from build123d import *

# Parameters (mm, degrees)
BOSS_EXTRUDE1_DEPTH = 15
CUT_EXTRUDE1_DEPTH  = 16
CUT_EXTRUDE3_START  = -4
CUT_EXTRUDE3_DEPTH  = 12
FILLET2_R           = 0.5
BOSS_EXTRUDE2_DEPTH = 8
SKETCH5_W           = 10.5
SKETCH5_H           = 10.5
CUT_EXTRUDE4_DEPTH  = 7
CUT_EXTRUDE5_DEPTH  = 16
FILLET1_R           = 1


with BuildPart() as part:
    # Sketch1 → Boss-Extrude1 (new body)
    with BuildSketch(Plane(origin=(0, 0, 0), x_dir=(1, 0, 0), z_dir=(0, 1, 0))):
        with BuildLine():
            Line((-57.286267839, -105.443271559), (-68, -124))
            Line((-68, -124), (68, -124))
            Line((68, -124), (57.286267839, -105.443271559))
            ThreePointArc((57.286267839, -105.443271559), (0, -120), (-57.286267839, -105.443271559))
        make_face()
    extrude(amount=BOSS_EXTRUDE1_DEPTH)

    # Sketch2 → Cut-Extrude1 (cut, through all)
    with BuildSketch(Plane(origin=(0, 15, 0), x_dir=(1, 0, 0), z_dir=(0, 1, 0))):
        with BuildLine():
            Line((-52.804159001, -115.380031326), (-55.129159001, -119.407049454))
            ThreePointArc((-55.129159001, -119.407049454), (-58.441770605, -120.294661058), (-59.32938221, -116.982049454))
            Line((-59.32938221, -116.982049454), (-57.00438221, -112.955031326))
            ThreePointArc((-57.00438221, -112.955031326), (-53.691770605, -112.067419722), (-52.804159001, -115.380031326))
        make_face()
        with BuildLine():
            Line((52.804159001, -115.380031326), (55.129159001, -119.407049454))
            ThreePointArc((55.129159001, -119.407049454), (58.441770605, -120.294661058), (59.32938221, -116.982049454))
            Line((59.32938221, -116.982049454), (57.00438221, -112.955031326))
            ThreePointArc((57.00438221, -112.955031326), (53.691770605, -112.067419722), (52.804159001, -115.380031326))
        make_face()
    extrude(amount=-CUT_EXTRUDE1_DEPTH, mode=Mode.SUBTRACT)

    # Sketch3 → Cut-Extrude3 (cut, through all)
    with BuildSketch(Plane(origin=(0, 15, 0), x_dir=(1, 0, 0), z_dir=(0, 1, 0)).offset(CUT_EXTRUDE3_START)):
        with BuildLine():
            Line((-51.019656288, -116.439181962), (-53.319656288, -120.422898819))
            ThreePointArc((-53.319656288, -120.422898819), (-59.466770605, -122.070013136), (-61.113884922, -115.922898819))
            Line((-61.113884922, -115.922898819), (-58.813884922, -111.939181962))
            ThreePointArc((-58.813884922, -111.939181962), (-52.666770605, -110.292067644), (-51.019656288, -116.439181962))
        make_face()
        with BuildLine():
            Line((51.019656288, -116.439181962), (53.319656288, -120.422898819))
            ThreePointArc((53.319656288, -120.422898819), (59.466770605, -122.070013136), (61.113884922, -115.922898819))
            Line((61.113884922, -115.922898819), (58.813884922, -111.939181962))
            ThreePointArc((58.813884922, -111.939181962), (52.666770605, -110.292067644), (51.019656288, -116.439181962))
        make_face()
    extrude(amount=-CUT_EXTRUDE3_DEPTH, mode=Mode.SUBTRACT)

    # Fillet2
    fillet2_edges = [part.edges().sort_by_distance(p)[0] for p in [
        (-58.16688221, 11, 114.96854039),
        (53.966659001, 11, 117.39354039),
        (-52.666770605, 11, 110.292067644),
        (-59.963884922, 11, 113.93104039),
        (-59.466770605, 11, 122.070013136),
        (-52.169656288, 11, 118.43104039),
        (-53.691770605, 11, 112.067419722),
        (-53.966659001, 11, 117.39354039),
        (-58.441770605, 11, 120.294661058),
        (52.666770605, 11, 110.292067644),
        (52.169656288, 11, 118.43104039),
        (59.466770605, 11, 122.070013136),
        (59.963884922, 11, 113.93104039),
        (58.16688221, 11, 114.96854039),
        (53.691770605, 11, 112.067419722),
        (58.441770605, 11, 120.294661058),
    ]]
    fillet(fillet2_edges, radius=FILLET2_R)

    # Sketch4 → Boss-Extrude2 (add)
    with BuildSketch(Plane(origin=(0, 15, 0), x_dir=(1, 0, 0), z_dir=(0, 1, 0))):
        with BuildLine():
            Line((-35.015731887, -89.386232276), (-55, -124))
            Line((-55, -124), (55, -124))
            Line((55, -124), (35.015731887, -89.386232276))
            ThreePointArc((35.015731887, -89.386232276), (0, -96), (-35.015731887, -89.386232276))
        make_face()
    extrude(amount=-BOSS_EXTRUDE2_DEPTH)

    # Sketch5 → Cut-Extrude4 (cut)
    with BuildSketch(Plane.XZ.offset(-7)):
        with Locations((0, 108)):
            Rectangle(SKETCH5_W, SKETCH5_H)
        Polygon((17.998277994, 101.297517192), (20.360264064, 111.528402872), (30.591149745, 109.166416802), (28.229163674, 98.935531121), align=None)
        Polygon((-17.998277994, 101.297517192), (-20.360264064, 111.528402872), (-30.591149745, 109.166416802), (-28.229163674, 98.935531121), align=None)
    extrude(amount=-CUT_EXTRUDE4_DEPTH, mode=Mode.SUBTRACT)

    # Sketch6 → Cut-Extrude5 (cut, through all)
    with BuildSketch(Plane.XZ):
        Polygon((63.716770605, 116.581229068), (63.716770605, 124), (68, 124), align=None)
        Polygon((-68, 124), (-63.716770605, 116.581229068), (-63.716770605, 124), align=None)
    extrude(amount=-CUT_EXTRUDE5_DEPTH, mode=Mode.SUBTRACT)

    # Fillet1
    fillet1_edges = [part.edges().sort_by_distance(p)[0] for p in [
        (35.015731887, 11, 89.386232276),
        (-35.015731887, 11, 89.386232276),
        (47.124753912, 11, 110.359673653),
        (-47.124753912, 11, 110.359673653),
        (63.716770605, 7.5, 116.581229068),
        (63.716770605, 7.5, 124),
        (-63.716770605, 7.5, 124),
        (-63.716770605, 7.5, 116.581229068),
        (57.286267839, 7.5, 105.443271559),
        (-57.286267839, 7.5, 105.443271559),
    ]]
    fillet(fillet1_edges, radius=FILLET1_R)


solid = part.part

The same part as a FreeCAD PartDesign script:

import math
import FreeCAD as App
import Part
import Sketcher
from FreeCAD import Vector
Q = App.Units.Quantity


def edges_at(feature, points):
    """Names of the edges that pass closest to the given points."""
    edges = feature.Shape.Edges
    near = lambda p: min(range(len(edges)), key=lambda i: edges[i].distToShape(Part.Vertex(*p))[0])
    return sorted({f"Edge{near(p) + 1}" for p in points})


def add_polygon(sketch, points):
    """Adds a closed chain of lines whose ends are joined by coincident constraints."""
    first, n = sketch.GeometryCount, len(points)
    for a, b in zip(points, points[1:] + points[:1]):
        sketch.addGeometry(Part.LineSegment(App.Vector(*a, 0), App.Vector(*b, 0)), False)
    for i in range(n):
        sketch.addConstraint(Sketcher.Constraint("Coincident", first + i, 2, first + (i + 1) % n, 1))

doc = App.newDocument("Part")
params = doc.addObject("Spreadsheet::Sheet", "Params")
for row, (alias, value) in enumerate([
    ("sketch1_radius", "120 mm"),
    ("sketch1_width", "136 mm"),
    ("pad1_length", "15 mm"),
    ("sketch2_length", "4.65 mm"),
    ("sketch3_radius", "4.5 mm"),
    ("sketch3_length", "4.6 mm"),
    ("fillet_radius", "0.5 mm"),
    ("sketch4_radius", "96 mm"),
    ("sketch4_width", "110 mm"),
    ("pad2_length", "8 mm"),
    ("sketch5_width", "10.5 mm"),
    ("sketch5_length", "10.5 mm"),
    ("pocket3_length", "7 mm"),
    ("fillet2_radius", "1 mm"),
], start=1):
    params.set(f"A{row}", alias)
    params.set(f"B{row}", "=" + value)
    params.setAlias(f"B{row}", alias)

body = doc.addObject("PartDesign::Body", "Body")

# Sketch on XZ plane
sketch1 = doc.addObject("Sketcher::SketchObject", "Sketch")
body.addObject(sketch1)
sketch1.AttachmentSupport = (doc.XZ_Plane, [""])
sketch1.MapMode = "FlatFace"
sketch1.addGeometry([
    Part.LineSegment(Vector(-57, 105, 0), Vector(-68, 124, 0)),
    Part.LineSegment(Vector(-68, 124, 0), Vector(68, 124, 0)),
    Part.LineSegment(Vector(68, 124, 0), Vector(57, 105, 0)),
    Part.ArcOfCircle(Part.Circle(Vector(0, 0, 0), Vector(0, 0, 1), 120), math.radians(61), math.radians(119)),
], False)
sketch1.addConstraint([
    Sketcher.Constraint("Coincident", 0, 2, 1, 1),
    Sketcher.Constraint("Coincident", 1, 2, 2, 1),
    Sketcher.Constraint("Coincident", 2, 2, 3, 1),
    Sketcher.Constraint("Coincident", 3, 2, 0, 1),
    Sketcher.Constraint("Horizontal", 1),
    Sketcher.Constraint("Coincident", 3, 3, -1, 1),
    Sketcher.Constraint("Horizontal", 2, 2, 3, 2),
    Sketcher.Constraint("Equal", 0, 2),
    Sketcher.Constraint("Radius", 3, Q("120 mm")),
    Sketcher.Constraint("DistanceX", 1, 1, 1, 2, Q("136 mm")),
    Sketcher.Constraint("Angle", 0, Q("120 deg")),
    Sketcher.Constraint("DistanceY", -1, 1, 0, 2, Q("124 mm")),
])
sketch1.setExpression("Constraints[8]", "Params.sketch1_radius")
sketch1.setExpression("Constraints[9]", "Params.sketch1_width")
pad1 = doc.addObject("PartDesign::Pad", "Pad")
body.addObject(pad1)
pad1.Profile = sketch1
pad1.setExpression("Length", "Params.pad1_length")
pad1.Reversed = True

# Sketch on XZ plane
sketch2 = doc.addObject("Sketcher::SketchObject", "Sketch001")
body.addObject(sketch2)
sketch2.AttachmentSupport = (doc.XZ_Plane, [""])
sketch2.MapMode = "FlatFace"
sketch2.AttachmentOffset = App.Placement(Vector(0, 0, -15), App.Rotation())
sketch2.addGeometry([
    Part.LineSegment(Vector(-55.1, 119.4, 0), Vector(-52.8, 115.4, 0)),  # 0
    Part.ArcOfCircle(Part.Circle(Vector(-54.9, 114.2, 0), Vector(0, 0, 1), 2.4), math.radians(-150), math.radians(30)),  # 1
    Part.LineSegment(Vector(-57, 113, 0), Vector(-59.3, 117, 0)),  # 2
    Part.ArcOfCircle(Part.Circle(Vector(-57.2, 118.2, 0), Vector(0, 0, 1), 2.4), math.radians(30), math.radians(210)),  # 3
    Part.LineSegment(Vector(52.8, 115.4, 0), Vector(55.1, 119.4, 0)),  # 4
    Part.ArcOfCircle(Part.Circle(Vector(57.2, 118.2, 0), Vector(0, 0, 1), 2.4), math.radians(-30), math.radians(150)),  # 5
    Part.LineSegment(Vector(59.3, 117, 0), Vector(57, 113, 0)),  # 6
    Part.ArcOfCircle(Part.Circle(Vector(54.9, 114.2, 0), Vector(0, 0, 1), 2.4), math.radians(150), math.radians(330)),  # 7
], False)
sketch2.addConstraint([
    Sketcher.Constraint("Tangent", 0, 2, 1, 2),
    Sketcher.Constraint("Tangent", 1, 1, 2, 1),
    Sketcher.Constraint("Tangent", 2, 2, 3, 2),
    Sketcher.Constraint("Tangent", 3, 1, 0, 1),
    Sketcher.Constraint("Tangent", 4, 2, 5, 2),
    Sketcher.Constraint("Tangent", 5, 1, 6, 1),
    Sketcher.Constraint("Tangent", 6, 2, 7, 2),
    Sketcher.Constraint("Tangent", 7, 1, 4, 1),
    Sketcher.Constraint("Equal", 1, 3),
    Sketcher.Constraint("Equal", 3, 5),
    Sketcher.Constraint("Equal", 5, 7),
    Sketcher.Constraint("Symmetric", 3, 3, 5, 3, -2),
    Sketcher.Constraint("Symmetric", 1, 3, 7, 3, -2),
    Sketcher.Constraint("Angle", 0, Q("-60 deg")),
    Sketcher.Constraint("Radius", 1, Q("2.425 mm")),
    Sketcher.Constraint("Distance", 0, Q("4.65 mm")),
    Sketcher.Constraint("DistanceX", 1, 3, -1, 1, Q("54.904271 mm")),
    Sketcher.Constraint("DistanceY", -1, 1, 1, 3, Q("114.167531 mm")),
])
sketch2.setExpression("Constraints[15]", "Params.sketch2_length")
pocket1 = doc.addObject("PartDesign::Pocket", "Pocket")
body.addObject(pocket1)
pocket1.Profile = sketch2
pocket1.Type = "ThroughAll"
pocket1.Reversed = True

# Sketch on XZ plane
sketch3 = doc.addObject("Sketcher::SketchObject", "Sketch002")
body.addObject(sketch3)
sketch3.AttachmentSupport = (doc.XZ_Plane, [""])
sketch3.MapMode = "FlatFace"
sketch3.AttachmentOffset = App.Placement(Vector(0, 0, -11), App.Rotation())
sketch3.addGeometry([
    Part.LineSegment(Vector(-53.3, 120.4, 0), Vector(-51, 116.4, 0)),  # 0
    Part.ArcOfCircle(Part.Circle(Vector(-54.9, 114.2, 0), Vector(0, 0, 1), 4.5), math.radians(-150), math.radians(30)),  # 1
    Part.LineSegment(Vector(-58.8, 111.9, 0), Vector(-61.1, 115.9, 0)),  # 2
    Part.ArcOfCircle(Part.Circle(Vector(-57.2, 118.2, 0), Vector(0, 0, 1), 4.5), math.radians(30), math.radians(210)),  # 3
    Part.LineSegment(Vector(51, 116.4, 0), Vector(53.3, 120.4, 0)),  # 4
    Part.ArcOfCircle(Part.Circle(Vector(57.2, 118.2, 0), Vector(0, 0, 1), 4.5), math.radians(-30), math.radians(150)),  # 5
    Part.LineSegment(Vector(61.1, 115.9, 0), Vector(58.8, 111.9, 0)),  # 6
    Part.ArcOfCircle(Part.Circle(Vector(54.9, 114.2, 0), Vector(0, 0, 1), 4.5), math.radians(150), math.radians(330)),  # 7
], False)
sketch3.addConstraint([
    Sketcher.Constraint("Tangent", 0, 2, 1, 2),
    Sketcher.Constraint("Tangent", 1, 1, 2, 1),
    Sketcher.Constraint("Tangent", 2, 2, 3, 2),
    Sketcher.Constraint("Tangent", 3, 1, 0, 1),
    Sketcher.Constraint("Tangent", 4, 2, 5, 2),
    Sketcher.Constraint("Tangent", 5, 1, 6, 1),
    Sketcher.Constraint("Tangent", 6, 2, 7, 2),
    Sketcher.Constraint("Tangent", 7, 1, 4, 1),
    Sketcher.Constraint("Equal", 1, 3),
    Sketcher.Constraint("Equal", 3, 5),
    Sketcher.Constraint("Equal", 5, 7),
    Sketcher.Constraint("Symmetric", 3, 3, 5, 3, -2),
    Sketcher.Constraint("Symmetric", 1, 3, 7, 3, -2),
    Sketcher.Constraint("Radius", 1, Q("4.5 mm")),
    Sketcher.Constraint("Angle", 0, Q("-60 deg")),
    Sketcher.Constraint("Distance", 0, Q("4.6 mm")),
    Sketcher.Constraint("DistanceY", -1, 1, 3, 3, Q("118.172899 mm")),
    Sketcher.Constraint("DistanceX", 1, 3, -1, 1, Q("54.916771 mm")),
])
sketch3.setExpression("Constraints[13]", "Params.sketch3_radius")
sketch3.setExpression("Constraints[15]", "Params.sketch3_length")
pocket2 = doc.addObject("PartDesign::Pocket", "Pocket001")
body.addObject(pocket2)
pocket2.Profile = sketch3
pocket2.Type = "ThroughAll"
pocket2.Reversed = True
doc.recompute()

fillet = doc.addObject("PartDesign::Fillet", "Fillet")
body.addObject(fillet)
fillet.Base = (pocket2, edges_at(pocket2, [
    (-58.167, 11, 114.969),
    (53.967, 11, 117.394),
    (-52.667, 11, 110.292),
    (-59.964, 11, 113.931),
    (-59.467, 11, 122.07),
    (-52.17, 11, 118.431),
    (-53.692, 11, 112.067),
    (-53.967, 11, 117.394),
    (-58.442, 11, 120.295),
    (52.667, 11, 110.292),
    (52.17, 11, 118.431),
    (59.467, 11, 122.07),
    (59.964, 11, 113.931),
    (58.167, 11, 114.969),
    (53.692, 11, 112.067),
    (58.442, 11, 120.295),
]))
fillet.setExpression("Radius", "Params.fillet_radius")

# Sketch on XZ plane
sketch4 = doc.addObject("Sketcher::SketchObject", "Sketch003")
body.addObject(sketch4)
sketch4.AttachmentSupport = (doc.XZ_Plane, [""])
sketch4.MapMode = "FlatFace"
sketch4.AttachmentOffset = App.Placement(Vector(0, 0, -15), App.Rotation())
sketch4.addGeometry([
    Part.LineSegment(Vector(-35, 89, 0), Vector(-55, 124, 0)),
    Part.LineSegment(Vector(-55, 124, 0), Vector(55, 124, 0)),
    Part.LineSegment(Vector(55, 124, 0), Vector(35, 89, 0)),
    Part.ArcOfCircle(Part.Circle(Vector(0, 0, 0), Vector(0, 0, 1), 96), math.radians(69), math.radians(111)),
], False)
sketch4.addConstraint([
    Sketcher.Constraint("Coincident", 0, 2, 1, 1),
    Sketcher.Constraint("Coincident", 1, 2, 2, 1),
    Sketcher.Constraint("Coincident", 2, 2, 3, 1),
    Sketcher.Constraint("Coincident", 3, 2, 0, 1),
    Sketcher.Constraint("Horizontal", 1),
    Sketcher.Constraint("Coincident", 3, 3, -1, 1),
    Sketcher.Constraint("Horizontal", 2, 2, 3, 2),
    Sketcher.Constraint("Equal", 0, 2),
    Sketcher.Constraint("Radius", 3, Q("96 mm")),
    Sketcher.Constraint("DistanceX", 1, 1, 1, 2, Q("110 mm")),
    Sketcher.Constraint("Angle", 0, Q("120 deg")),
    Sketcher.Constraint("DistanceY", -1, 1, 0, 2, Q("124 mm")),
])
sketch4.setExpression("Constraints[8]", "Params.sketch4_radius")
sketch4.setExpression("Constraints[9]", "Params.sketch4_width")
pad2 = doc.addObject("PartDesign::Pad", "Pad001")
body.addObject(pad2)
pad2.Profile = sketch4
pad2.setExpression("Length", "Params.pad2_length")

# Sketch on XZ plane
sketch5 = doc.addObject("Sketcher::SketchObject", "Sketch004")
body.addObject(sketch5)
sketch5.AttachmentSupport = (doc.XZ_Plane, [""])
sketch5.MapMode = "FlatFace"
sketch5.AttachmentOffset = App.Placement(Vector(0, 0, -7), App.Rotation())
add_polygon(sketch5, [(-5, 113), (-5, 103), (5, 103), (5, 113)])  # lines 0-3
add_polygon(sketch5, [(20, 112), (18, 101), (28, 99), (31, 109)])  # lines 4-7
add_polygon(sketch5, [(-18, 101), (-20, 112), (-31, 109), (-28, 99)])  # lines 8-11
sketch5.addConstraint([
    Sketcher.Constraint("Vertical", 0),
    Sketcher.Constraint("Horizontal", 1),
    Sketcher.Constraint("Vertical", 2),
    Sketcher.Constraint("Horizontal", 3),
    Sketcher.Constraint("Symmetric", 7, 2, 8, 2, -2),
    Sketcher.Constraint("Symmetric", 6, 2, 9, 2, -2),
    Sketcher.Constraint("Symmetric", 5, 2, 10, 2, -2),
    Sketcher.Constraint("Symmetric", 4, 2, 11, 2, -2),
    Sketcher.Constraint("Perpendicular", 4, 5),
    Sketcher.Constraint("Perpendicular", 5, 6),
    Sketcher.Constraint("Perpendicular", 6, 7),
    Sketcher.Constraint("Equal", 3, 0),
    Sketcher.Constraint("Equal", 4, 5),
    Sketcher.Constraint("Angle", 4, Q("-103 deg")),
    Sketcher.Constraint("DistanceX", 1, 1, 1, 2, Q("10.5 mm")),
    Sketcher.Constraint("Distance", 4, Q("10.5 mm")),
    Sketcher.Constraint("DistanceX", 0, 2, -1, 1, Q("5.25 mm")),
    Sketcher.Constraint("DistanceY", -1, 1, 0, 2, Q("102.75 mm")),
    Sketcher.Constraint("DistanceY", -1, 1, 5, 2, Q("98.935531 mm")),
    Sketcher.Constraint("DistanceX", -1, 1, 6, 2, Q("30.59115 mm")),
])
sketch5.setExpression("Constraints[26]", "Params.sketch5_width")
sketch5.setExpression("Constraints[27]", "Params.sketch5_length")
pocket3 = doc.addObject("PartDesign::Pocket", "Pocket002")
body.addObject(pocket3)
pocket3.Profile = sketch5
pocket3.setExpression("Length", "Params.pocket3_length")

# Sketch on XZ plane
sketch6 = doc.addObject("Sketcher::SketchObject", "Sketch005")
body.addObject(sketch6)
sketch6.AttachmentSupport = (doc.XZ_Plane, [""])
sketch6.MapMode = "FlatFace"
add_polygon(sketch6, [(63.7, 124), (63.7, 116.6), (68, 124)])  # lines 0-2
add_polygon(sketch6, [(-68, 124), (-63.7, 116.6), (-63.7, 124)])  # lines 3-5
sketch6.addConstraint([
    Sketcher.Constraint("Vertical", 0),
    Sketcher.Constraint("Horizontal", 2),
    Sketcher.Constraint("Vertical", 4),
    Sketcher.Constraint("Horizontal", 5),
    Sketcher.Constraint("Symmetric", 0, 2, 3, 2, -2),
    Sketcher.Constraint("Symmetric", 1, 2, 5, 2, -2),
    Sketcher.Constraint("Angle", 1, Q("60 deg")),
    Sketcher.Constraint("DistanceX", -1, 1, 1, 2, Q("68 mm")),
    Sketcher.Constraint("DistanceY", -1, 1, 1, 2, Q("124 mm")),
    Sketcher.Constraint("DistanceX", 2, 2, 2, 1, Q("4.283229 mm")),
])
pocket4 = doc.addObject("PartDesign::Pocket", "Pocket003")
body.addObject(pocket4)
pocket4.Profile = sketch6
pocket4.Type = "ThroughAll"
doc.recompute()

fillet2 = doc.addObject("PartDesign::Fillet", "Fillet001")
body.addObject(fillet2)
fillet2.Base = (pocket4, edges_at(pocket4, [
    (35.016, 11, 89.386),
    (-35.016, 11, 89.386),
    (47.125, 11, 110.36),
    (-47.125, 11, 110.36),
    (63.717, 7.5, 116.581),
    (63.717, 7.5, 124),
    (-63.717, 7.5, 124),
    (-63.717, 7.5, 116.581),
    (57.286, 7.5, 105.443),
    (-57.286, 7.5, 105.443),
]))
fillet2.setExpression("Radius", "Params.fillet2_radius")

doc.recompute()
